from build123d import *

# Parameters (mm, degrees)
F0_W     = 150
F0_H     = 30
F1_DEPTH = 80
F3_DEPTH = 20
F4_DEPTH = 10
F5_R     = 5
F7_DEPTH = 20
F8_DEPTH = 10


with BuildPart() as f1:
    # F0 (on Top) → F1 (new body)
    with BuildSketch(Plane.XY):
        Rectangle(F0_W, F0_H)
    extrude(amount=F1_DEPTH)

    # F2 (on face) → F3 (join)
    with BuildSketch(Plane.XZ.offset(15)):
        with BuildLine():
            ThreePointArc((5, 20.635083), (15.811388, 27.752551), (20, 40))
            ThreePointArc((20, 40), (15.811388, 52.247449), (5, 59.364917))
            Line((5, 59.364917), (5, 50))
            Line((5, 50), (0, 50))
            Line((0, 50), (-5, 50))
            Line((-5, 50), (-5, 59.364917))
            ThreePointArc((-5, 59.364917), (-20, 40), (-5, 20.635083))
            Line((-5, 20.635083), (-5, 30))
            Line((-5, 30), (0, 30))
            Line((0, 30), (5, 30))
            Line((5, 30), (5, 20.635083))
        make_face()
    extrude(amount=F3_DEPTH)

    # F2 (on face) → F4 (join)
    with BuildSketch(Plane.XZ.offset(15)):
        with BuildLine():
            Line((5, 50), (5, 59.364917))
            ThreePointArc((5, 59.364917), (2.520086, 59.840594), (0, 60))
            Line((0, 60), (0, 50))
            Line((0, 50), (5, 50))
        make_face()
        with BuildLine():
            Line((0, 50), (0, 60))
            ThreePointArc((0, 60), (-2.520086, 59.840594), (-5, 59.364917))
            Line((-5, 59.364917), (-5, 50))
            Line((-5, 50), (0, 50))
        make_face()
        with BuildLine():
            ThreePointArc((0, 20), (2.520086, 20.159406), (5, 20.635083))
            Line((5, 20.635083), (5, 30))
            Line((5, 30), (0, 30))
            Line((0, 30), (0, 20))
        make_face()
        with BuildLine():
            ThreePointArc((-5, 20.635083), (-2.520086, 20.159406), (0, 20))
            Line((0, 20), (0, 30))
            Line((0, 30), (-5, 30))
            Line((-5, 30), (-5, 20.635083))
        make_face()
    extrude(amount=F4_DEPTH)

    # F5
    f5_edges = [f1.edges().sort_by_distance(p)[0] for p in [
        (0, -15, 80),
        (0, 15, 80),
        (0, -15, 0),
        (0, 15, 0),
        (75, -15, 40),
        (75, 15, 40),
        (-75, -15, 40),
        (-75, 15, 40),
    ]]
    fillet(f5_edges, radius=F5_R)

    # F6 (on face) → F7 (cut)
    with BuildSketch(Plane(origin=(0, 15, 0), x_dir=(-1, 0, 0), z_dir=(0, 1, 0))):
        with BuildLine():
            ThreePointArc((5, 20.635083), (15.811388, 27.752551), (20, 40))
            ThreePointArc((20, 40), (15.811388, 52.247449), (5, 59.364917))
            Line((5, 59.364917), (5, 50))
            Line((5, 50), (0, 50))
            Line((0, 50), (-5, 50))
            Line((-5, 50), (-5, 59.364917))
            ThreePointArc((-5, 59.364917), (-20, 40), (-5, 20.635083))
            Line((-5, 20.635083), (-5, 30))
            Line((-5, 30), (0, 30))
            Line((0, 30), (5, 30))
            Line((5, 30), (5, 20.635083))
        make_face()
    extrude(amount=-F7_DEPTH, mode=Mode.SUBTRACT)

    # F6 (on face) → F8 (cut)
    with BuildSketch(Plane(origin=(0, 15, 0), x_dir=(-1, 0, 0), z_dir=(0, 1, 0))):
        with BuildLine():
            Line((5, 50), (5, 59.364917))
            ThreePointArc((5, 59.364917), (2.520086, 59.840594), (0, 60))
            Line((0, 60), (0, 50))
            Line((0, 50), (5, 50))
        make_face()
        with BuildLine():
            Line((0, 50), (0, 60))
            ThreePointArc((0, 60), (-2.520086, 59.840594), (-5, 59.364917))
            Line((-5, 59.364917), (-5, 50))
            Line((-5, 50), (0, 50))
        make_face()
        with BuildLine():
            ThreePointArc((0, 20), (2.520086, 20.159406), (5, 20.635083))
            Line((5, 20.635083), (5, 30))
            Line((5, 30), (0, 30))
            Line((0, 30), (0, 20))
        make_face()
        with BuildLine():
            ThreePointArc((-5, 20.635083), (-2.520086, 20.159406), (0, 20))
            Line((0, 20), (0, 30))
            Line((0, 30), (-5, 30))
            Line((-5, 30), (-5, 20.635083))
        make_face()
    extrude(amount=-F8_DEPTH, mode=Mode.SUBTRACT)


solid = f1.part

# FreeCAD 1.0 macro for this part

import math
import FreeCAD as App
import Part
import Sketcher

V = App.Vector
Q = App.Units.Quantity


def edges_at(feature, points):
    """Names of the edges that pass closest to the given points."""
    edges = feature.Shape.Edges
    near = lambda p: min(range(len(edges)), key=lambda i: edges[i].distToShape(Part.Vertex(*p))[0])
    return sorted({f"Edge{near(p) + 1}" for p in points})


def add_polygon(sketch, points):
    """Adds a closed chain of lines whose ends are joined by coincident constraints."""
    first, n = sketch.GeometryCount, len(points)
    for a, b in zip(points, points[1:] + points[:1]):
        sketch.addGeometry(Part.LineSegment(App.Vector(*a, 0), App.Vector(*b, 0)), False)
    for i in range(n):
        sketch.addConstraint(Sketcher.Constraint("Coincident", first + i, 2, first + (i + 1) % n, 1))

doc = App.newDocument("Part")
body = doc.addObject("PartDesign::Body", "Body")

# Sketch on XY plane
sketch1 = body.newObject("Sketcher::SketchObject", "Sketch")
sketch1.AttachmentSupport = (doc.getObject("XY_Plane"), [""])
sketch1.MapMode = "FlatFace"
add_polygon(sketch1, [(-75, 15), (-75, -15), (75, -15), (75, 15)])  # lines 0-3
sketch1.addConstraint(Sketcher.Constraint("Vertical", 0))
sketch1.addConstraint(Sketcher.Constraint("Horizontal", 1))
sketch1.addConstraint(Sketcher.Constraint("Vertical", 2))
sketch1.addConstraint(Sketcher.Constraint("Horizontal", 3))
sketch1.addConstraint(Sketcher.Constraint("Symmetric", 0, 2, 2, 2, -1, 1))
sketch1.addConstraint(Sketcher.Constraint("DistanceX", 1, 1, 1, 2, Q("150 mm")))
sketch1.addConstraint(Sketcher.Constraint("DistanceY", 0, 2, 0, 1, Q("30 mm")))
pad1 = body.newObject("PartDesign::Pad", "Pad")
pad1.Profile = sketch1
pad1.Length = 80

# Sketch on XZ plane
sketch2 = body.newObject("Sketcher::SketchObject", "Sketch001")
sketch2.AttachmentSupport = (doc.getObject("XZ_Plane"), [""])
sketch2.MapMode = "FlatFace"
sketch2.AttachmentOffset = App.Placement(V(0, 0, 15), App.Rotation())
sketch2.addGeometry(Part.ArcOfCircle(Part.Circle(V(-0.000001, 40, 0), V(0, 0, 1), 20.000001), math.radians(-75.522486), math.radians(-0.000001)), False)
sketch2.addGeometry(Part.ArcOfCircle(Part.Circle(V(-0.000001, 40, 0), V(0, 0, 1), 20.000001), math.radians(0.000001), math.radians(75.522486)), False)
sketch2.addGeometry(Part.LineSegment(V(5, 59.364917, 0), V(5, 50, 0)), False)
sketch2.addGeometry(Part.LineSegment(V(5, 50, 0), V(-5, 50, 0)), False)
sketch2.addGeometry(Part.LineSegment(V(-5, 50, 0), V(-5, 59.364917, 0)), False)
sketch2.addGeometry(Part.ArcOfCircle(Part.Circle(V(0, 40, 0), V(0, 0, 1), 20), math.radians(104.477513), math.radians(255.522487)), False)
sketch2.addGeometry(Part.LineSegment(V(-5, 20.635083, 0), V(-5, 30, 0)), False)
sketch2.addGeometry(Part.LineSegment(V(-5, 30, 0), V(5, 30, 0)), False)
sketch2.addGeometry(Part.LineSegment(V(5, 30, 0), V(5, 20.635083, 0)), False)
sketch2.addConstraint(Sketcher.Constraint("Tangent", 0, 2, 1, 1))
sketch2.addConstraint(Sketcher.Constraint("Coincident", 1, 2, 2, 1))
sketch2.addConstraint(Sketcher.Constraint("Coincident", 2, 2, 3, 1))
sketch2.addConstraint(Sketcher.Constraint("Coincident", 3, 2, 4, 1))
sketch2.addConstraint(Sketcher.Constraint("Coincident", 4, 2, 5, 1))
sketch2.addConstraint(Sketcher.Constraint("Coincident", 5, 2, 6, 1))
sketch2.addConstraint(Sketcher.Constraint("Coincident", 6, 2, 7, 1))
sketch2.addConstraint(Sketcher.Constraint("Coincident", 7, 2, 8, 1))
sketch2.addConstraint(Sketcher.Constraint("Coincident", 8, 2, 0, 1))
sketch2.addConstraint(Sketcher.Constraint("Vertical", 2))
sketch2.addConstraint(Sketcher.Constraint("Horizontal", 3))
sketch2.addConstraint(Sketcher.Constraint("Vertical", 4))
sketch2.addConstraint(Sketcher.Constraint("Vertical", 6))
sketch2.addConstraint(Sketcher.Constraint("Horizontal", 7))
sketch2.addConstraint(Sketcher.Constraint("Vertical", 8))
sketch2.addConstraint(Sketcher.Constraint("Coincident", 5, 3, 0, 3))
sketch2.addConstraint(Sketcher.Constraint("Equal", 0, 1))
sketch2.addConstraint(Sketcher.Constraint("Equal", 1, 5))
sketch2.addConstraint(Sketcher.Constraint("Symmetric", 1, 2, 4, 2, -2))
sketch2.addConstraint(Sketcher.Constraint("Horizontal", 5, 3, 0, 2))
sketch2.addConstraint(Sketcher.Constraint("Horizontal", 5, 2, 8, 2))
sketch2.addConstraint(Sketcher.Constraint("Vertical", 4, 2, 5, 2))
sketch2.addConstraint(Sketcher.Constraint("Equal", 4, 6))
sketch2.addConstraint(Sketcher.Constraint("Radius", 0, Q("20.000001 mm")))
sketch2.addConstraint(Sketcher.Constraint("DistanceX", 3, 2, 3, 1, Q("10 mm")))
sketch2.addConstraint(Sketcher.Constraint("DistanceY", -1, 1, 0, 3, Q("40 mm")))
sketch2.addConstraint(Sketcher.Constraint("DistanceY", -1, 1, 2, 2, Q("50 mm")))
pad2 = body.newObject("PartDesign::Pad", "Pad001")
pad2.Profile = sketch2
pad2.Length = 20

# Sketch on XZ plane
sketch3 = body.newObject("Sketcher::SketchObject", "Sketch002")
sketch3.AttachmentSupport = (doc.getObject("XZ_Plane"), [""])
sketch3.MapMode = "FlatFace"
sketch3.AttachmentOffset = App.Placement(V(0, 0, 15), App.Rotation())
sketch3.addGeometry(Part.LineSegment(V(5, 50, 0), V(5, 59.364917, 0)), False)
sketch3.addGeometry(Part.ArcOfCircle(Part.Circle(V(0, 39.999995, 0), V(0, 0, 1), 20.000005), math.radians(75.522493), math.radians(90.000001)), False)
sketch3.addGeometry(Part.ArcOfCircle(Part.Circle(V(0, 39.999995, 0), V(0, 0, 1), 20.000005), math.radians(89.999999), math.radians(104.477507)), False)
sketch3.addGeometry(Part.LineSegment(V(-5, 59.364917, 0), V(-5, 50, 0)), False)
sketch3.addGeometry(Part.LineSegment(V(-5, 50, 0), V(5, 50, 0)), False)
sketch3.addGeometry(Part.ArcOfCircle(Part.Circle(V(0, 40.000005, 0), V(0, 0, 1), 20.000005), math.radians(-90.000001), math.radians(-75.522493)), False)
sketch3.addGeometry(Part.LineSegment(V(5, 20.635083, 0), V(5, 30, 0)), False)
sketch3.addGeometry(Part.LineSegment(V(5, 30, 0), V(-5, 30, 0)), False)
sketch3.addGeometry(Part.LineSegment(V(-5, 30, 0), V(-5, 20.635083, 0)), False)
sketch3.addGeometry(Part.ArcOfCircle(Part.Circle(V(0, 40.000005, 0), V(0, 0, 1), 20.000005), math.radians(-104.477507), math.radians(-89.999999)), False)
sketch3.addConstraint(Sketcher.Constraint("Coincident", 0, 2, 1, 1))
sketch3.addConstraint(Sketcher.Constraint("Tangent", 1, 2, 2, 1))
sketch3.addConstraint(Sketcher.Constraint("Coincident", 2, 2, 3, 1))
sketch3.addConstraint(Sketcher.Constraint("Coincident", 3, 2, 4, 1))
sketch3.addConstraint(Sketcher.Constraint("Coincident", 4, 2, 0, 1))
sketch3.addConstraint(Sketcher.Constraint("Coincident", 5, 2, 6, 1))
sketch3.addConstraint(Sketcher.Constraint("Coincident", 6, 2, 7, 1))
sketch3.addConstraint(Sketcher.Constraint("Coincident", 7, 2, 8, 1))
sketch3.addConstraint(Sketcher.Constraint("Coincident", 8, 2, 9, 1))
sketch3.addConstraint(Sketcher.Constraint("Tangent", 9, 2, 5, 1))
sketch3.addConstraint(Sketcher.Constraint("Vertical", 0))
sketch3.addConstraint(Sketcher.Constraint("Vertical", 3))
sketch3.addConstraint(Sketcher.Constraint("Horizontal", 4))
sketch3.addConstraint(Sketcher.Constraint("Vertical", 6))
sketch3.addConstraint(Sketcher.Constraint("Horizontal", 7))
sketch3.addConstraint(Sketcher.Constraint("Vertical", 8))
sketch3.addConstraint(Sketcher.Constraint("Coincident", 5, 3, 1, 3))
sketch3.addConstraint(Sketcher.Constraint("Equal", 1, 2))
sketch3.addConstraint(Sketcher.Constraint("Equal", 2, 5))
sketch3.addConstraint(Sketcher.Constraint("Equal", 5, 9))
sketch3.addConstraint(Sketcher.Constraint("Symmetric", 0, 2, 2, 2, -2))
sketch3.addConstraint(Sketcher.Constraint("PointOnObject", 1, 2, -2))
sketch3.addConstraint(Sketcher.Constraint("PointOnObject", 9, 2, -2))
sketch3.addConstraint(Sketcher.Constraint("Horizontal", 5, 2, 8, 2))
sketch3.addConstraint(Sketcher.Constraint("Vertical", 4, 2, 5, 2))
sketch3.addConstraint(Sketcher.Constraint("Equal", 3, 6))
sketch3.addConstraint(Sketcher.Constraint("DistanceX", 4, 1, 4, 2, Q("10 mm")))
sketch3.addConstraint(Sketcher.Constraint("DistanceY", -1, 1, 1, 2, Q("60 mm")))
sketch3.addConstraint(Sketcher.Constraint("DistanceY", -1, 1, 3, 2, Q("50 mm")))
sketch3.addConstraint(Sketcher.Constraint("DistanceY", -1, 1, 6, 2, Q("30 mm")))
pad3 = body.newObject("PartDesign::Pad", "Pad002")
pad3.Profile = sketch3
pad3.Length = 10
doc.recompute()

fillet = body.newObject("PartDesign::Fillet", "Fillet")
fillet.Base = (pad3, edges_at(pad3, [
    (0, -15, 80),
    (0, 15, 80),
    (0, -15, 0),
    (0, 15, 0),
    (75, -15, 40),
    (75, 15, 40),
    (-75, -15, 40),
    (-75, 15, 40),
]))
fillet.Radius = 5

# Sketch on XZ plane
sketch4 = body.newObject("Sketcher::SketchObject", "Sketch003")
sketch4.AttachmentSupport = (doc.getObject("XZ_Plane"), [""])
sketch4.MapMode = "FlatFace"
sketch4.AttachmentOffset = App.Placement(V(0, 0, -15), App.Rotation())
sketch4.addGeometry(Part.ArcOfCircle(Part.Circle(V(0.000001, 40, 0), V(0, 0, 1), 20.000001), math.radians(-179.999999), math.radians(-104.477514)), False)
sketch4.addGeometry(Part.ArcOfCircle(Part.Circle(V(0.000001, 40, 0), V(0, 0, 1), 20.000001), math.radians(104.477514), math.radians(179.999999)), False)
sketch4.addGeometry(Part.LineSegment(V(-5, 59.364917, 0), V(-5, 50, 0)), False)
sketch4.addGeometry(Part.LineSegment(V(-5, 50, 0), V(5, 50, 0)), False)
sketch4.addGeometry(Part.LineSegment(V(5, 50, 0), V(5, 59.364917, 0)), False)
sketch4.addGeometry(Part.ArcOfCircle(Part.Circle(V(0, 40, 0), V(0, 0, 1), 20), math.radians(-75.522487), math.radians(75.522487)), False)
sketch4.addGeometry(Part.LineSegment(V(5, 20.635083, 0), V(5, 30, 0)), False)
sketch4.addGeometry(Part.LineSegment(V(5, 30, 0), V(-5, 30, 0)), False)
sketch4.addGeometry(Part.LineSegment(V(-5, 30, 0), V(-5, 20.635083, 0)), False)
sketch4.addConstraint(Sketcher.Constraint("Tangent", 0, 1, 1, 2))
sketch4.addConstraint(Sketcher.Constraint("Coincident", 1, 1, 2, 1))
sketch4.addConstraint(Sketcher.Constraint("Coincident", 2, 2, 3, 1))
sketch4.addConstraint(Sketcher.Constraint("Coincident", 3, 2, 4, 1))
sketch4.addConstraint(Sketcher.Constraint("Coincident", 4, 2, 5, 2))
sketch4.addConstraint(Sketcher.Constraint("Coincident", 5, 1, 6, 1))
sketch4.addConstraint(Sketcher.Constraint("Coincident", 6, 2, 7, 1))
sketch4.addConstraint(Sketcher.Constraint("Coincident", 7, 2, 8, 1))
sketch4.addConstraint(Sketcher.Constraint("Coincident", 8, 2, 0, 2))
sketch4.addConstraint(Sketcher.Constraint("Vertical", 2))
sketch4.addConstraint(Sketcher.Constraint("Horizontal", 3))
sketch4.addConstraint(Sketcher.Constraint("Vertical", 4))
sketch4.addConstraint(Sketcher.Constraint("Vertical", 6))
sketch4.addConstraint(Sketcher.Constraint("Horizontal", 7))
sketch4.addConstraint(Sketcher.Constraint("Vertical", 8))
sketch4.addConstraint(Sketcher.Constraint("Coincident", 5, 3, 0, 3))
sketch4.addConstraint(Sketcher.Constraint("Equal", 0, 1))
sketch4.addConstraint(Sketcher.Constraint("Equal", 1, 5))
sketch4.addConstraint(Sketcher.Constraint("Symmetric", 1, 1, 4, 2, -2))
sketch4.addConstraint(Sketcher.Constraint("Horizontal", 5, 3, 0, 1))
sketch4.addConstraint(Sketcher.Constraint("Horizontal", 5, 1, 8, 2))
sketch4.addConstraint(Sketcher.Constraint("Vertical", 4, 2, 5, 1))
sketch4.addConstraint(Sketcher.Constraint("Equal", 4, 6))
sketch4.addConstraint(Sketcher.Constraint("Radius", 0, Q("20.000001 mm")))
sketch4.addConstraint(Sketcher.Constraint("DistanceX", 3, 1, 3, 2, Q("10 mm")))
sketch4.addConstraint(Sketcher.Constraint("DistanceY", -1, 1, 0, 3, Q("40 mm")))
sketch4.addConstraint(Sketcher.Constraint("DistanceY", -1, 1, 2, 2, Q("50 mm")))
pocket1 = body.newObject("PartDesign::Pocket", "Pocket")
pocket1.Profile = sketch4
pocket1.Length = 20
pocket1.Reversed = True

# Sketch on XZ plane
sketch5 = body.newObject("Sketcher::SketchObject", "Sketch004")
sketch5.AttachmentSupport = (doc.getObject("XZ_Plane"), [""])
sketch5.MapMode = "FlatFace"
sketch5.AttachmentOffset = App.Placement(V(0, 0, -15), App.Rotation())
sketch5.addGeometry(Part.LineSegment(V(-5, 50, 0), V(-5, 59.364917, 0)), False)
sketch5.addGeometry(Part.ArcOfCircle(Part.Circle(V(0, 39.999995, 0), V(0, 0, 1), 20.000005), math.radians(89.999999), math.radians(104.477507)), False)
sketch5.addGeometry(Part.ArcOfCircle(Part.Circle(V(0, 39.999995, 0), V(0, 0, 1), 20.000005), math.radians(75.522493), math.radians(90.000001)), False)
sketch5.addGeometry(Part.LineSegment(V(5, 59.364917, 0), V(5, 50, 0)), False)
sketch5.addGeometry(Part.LineSegment(V(5, 50, 0), V(-5, 50, 0)), False)
sketch5.addGeometry(Part.ArcOfCircle(Part.Circle(V(0, 40.000005, 0), V(0, 0, 1), 20.000005), math.radians(-104.477507), math.radians(-89.999999)), False)
sketch5.addGeometry(Part.LineSegment(V(-5, 20.635083, 0), V(-5, 30, 0)), False)
sketch5.addGeometry(Part.LineSegment(V(-5, 30, 0), V(5, 30, 0)), False)
sketch5.addGeometry(Part.LineSegment(V(5, 30, 0), V(5, 20.635083, 0)), False)
sketch5.addGeometry(Part.ArcOfCircle(Part.Circle(V(0, 40.000005, 0), V(0, 0, 1), 20.000005), math.radians(-90.000001), math.radians(-75.522493)), False)
sketch5.addConstraint(Sketcher.Constraint("Coincident", 0, 2, 1, 2))
sketch5.addConstraint(Sketcher.Constraint("Tangent", 1, 1, 2, 2))
sketch5.addConstraint(Sketcher.Constraint("Coincident", 2, 1, 3, 1))
sketch5.addConstraint(Sketcher.Constraint("Coincident", 3, 2, 4, 1))
sketch5.addConstraint(Sketcher.Constraint("Coincident", 4, 2, 0, 1))
sketch5.addConstraint(Sketcher.Constraint("Coincident", 5, 1, 6, 1))
sketch5.addConstraint(Sketcher.Constraint("Coincident", 6, 2, 7, 1))
sketch5.addConstraint(Sketcher.Constraint("Coincident", 7, 2, 8, 1))
sketch5.addConstraint(Sketcher.Constraint("Coincident", 8, 2, 9, 2))
sketch5.addConstraint(Sketcher.Constraint("Tangent", 9, 1, 5, 2))
sketch5.addConstraint(Sketcher.Constraint("Vertical", 0))
sketch5.addConstraint(Sketcher.Constraint("Vertical", 3))
sketch5.addConstraint(Sketcher.Constraint("Horizontal", 4))
sketch5.addConstraint(Sketcher.Constraint("Vertical", 6))
sketch5.addConstraint(Sketcher.Constraint("Horizontal", 7))
sketch5.addConstraint(Sketcher.Constraint("Vertical", 8))
sketch5.addConstraint(Sketcher.Constraint("Coincident", 5, 3, 1, 3))
sketch5.addConstraint(Sketcher.Constraint("Equal", 1, 2))
sketch5.addConstraint(Sketcher.Constraint("Equal", 2, 5))
sketch5.addConstraint(Sketcher.Constraint("Equal", 5, 9))
sketch5.addConstraint(Sketcher.Constraint("Symmetric", 0, 2, 2, 1, -2))
sketch5.addConstraint(Sketcher.Constraint("PointOnObject", 1, 1, -2))
sketch5.addConstraint(Sketcher.Constraint("PointOnObject", 9, 1, -2))
sketch5.addConstraint(Sketcher.Constraint("Horizontal", 5, 1, 8, 2))
sketch5.addConstraint(Sketcher.Constraint("Vertical", 4, 2, 5, 1))
sketch5.addConstraint(Sketcher.Constraint("Equal", 3, 6))
sketch5.addConstraint(Sketcher.Constraint("DistanceX", 4, 2, 4, 1, Q("10 mm")))
sketch5.addConstraint(Sketcher.Constraint("DistanceY", -1, 1, 1, 1, Q("60 mm")))
sketch5.addConstraint(Sketcher.Constraint("DistanceY", -1, 1, 3, 2, Q("50 mm")))
sketch5.addConstraint(Sketcher.Constraint("DistanceY", -1, 1, 6, 2, Q("30 mm")))
pocket2 = body.newObject("PartDesign::Pocket", "Pocket001")
pocket2.Profile = sketch5
pocket2.Length = 10
pocket2.Reversed = True

doc.recompute()
